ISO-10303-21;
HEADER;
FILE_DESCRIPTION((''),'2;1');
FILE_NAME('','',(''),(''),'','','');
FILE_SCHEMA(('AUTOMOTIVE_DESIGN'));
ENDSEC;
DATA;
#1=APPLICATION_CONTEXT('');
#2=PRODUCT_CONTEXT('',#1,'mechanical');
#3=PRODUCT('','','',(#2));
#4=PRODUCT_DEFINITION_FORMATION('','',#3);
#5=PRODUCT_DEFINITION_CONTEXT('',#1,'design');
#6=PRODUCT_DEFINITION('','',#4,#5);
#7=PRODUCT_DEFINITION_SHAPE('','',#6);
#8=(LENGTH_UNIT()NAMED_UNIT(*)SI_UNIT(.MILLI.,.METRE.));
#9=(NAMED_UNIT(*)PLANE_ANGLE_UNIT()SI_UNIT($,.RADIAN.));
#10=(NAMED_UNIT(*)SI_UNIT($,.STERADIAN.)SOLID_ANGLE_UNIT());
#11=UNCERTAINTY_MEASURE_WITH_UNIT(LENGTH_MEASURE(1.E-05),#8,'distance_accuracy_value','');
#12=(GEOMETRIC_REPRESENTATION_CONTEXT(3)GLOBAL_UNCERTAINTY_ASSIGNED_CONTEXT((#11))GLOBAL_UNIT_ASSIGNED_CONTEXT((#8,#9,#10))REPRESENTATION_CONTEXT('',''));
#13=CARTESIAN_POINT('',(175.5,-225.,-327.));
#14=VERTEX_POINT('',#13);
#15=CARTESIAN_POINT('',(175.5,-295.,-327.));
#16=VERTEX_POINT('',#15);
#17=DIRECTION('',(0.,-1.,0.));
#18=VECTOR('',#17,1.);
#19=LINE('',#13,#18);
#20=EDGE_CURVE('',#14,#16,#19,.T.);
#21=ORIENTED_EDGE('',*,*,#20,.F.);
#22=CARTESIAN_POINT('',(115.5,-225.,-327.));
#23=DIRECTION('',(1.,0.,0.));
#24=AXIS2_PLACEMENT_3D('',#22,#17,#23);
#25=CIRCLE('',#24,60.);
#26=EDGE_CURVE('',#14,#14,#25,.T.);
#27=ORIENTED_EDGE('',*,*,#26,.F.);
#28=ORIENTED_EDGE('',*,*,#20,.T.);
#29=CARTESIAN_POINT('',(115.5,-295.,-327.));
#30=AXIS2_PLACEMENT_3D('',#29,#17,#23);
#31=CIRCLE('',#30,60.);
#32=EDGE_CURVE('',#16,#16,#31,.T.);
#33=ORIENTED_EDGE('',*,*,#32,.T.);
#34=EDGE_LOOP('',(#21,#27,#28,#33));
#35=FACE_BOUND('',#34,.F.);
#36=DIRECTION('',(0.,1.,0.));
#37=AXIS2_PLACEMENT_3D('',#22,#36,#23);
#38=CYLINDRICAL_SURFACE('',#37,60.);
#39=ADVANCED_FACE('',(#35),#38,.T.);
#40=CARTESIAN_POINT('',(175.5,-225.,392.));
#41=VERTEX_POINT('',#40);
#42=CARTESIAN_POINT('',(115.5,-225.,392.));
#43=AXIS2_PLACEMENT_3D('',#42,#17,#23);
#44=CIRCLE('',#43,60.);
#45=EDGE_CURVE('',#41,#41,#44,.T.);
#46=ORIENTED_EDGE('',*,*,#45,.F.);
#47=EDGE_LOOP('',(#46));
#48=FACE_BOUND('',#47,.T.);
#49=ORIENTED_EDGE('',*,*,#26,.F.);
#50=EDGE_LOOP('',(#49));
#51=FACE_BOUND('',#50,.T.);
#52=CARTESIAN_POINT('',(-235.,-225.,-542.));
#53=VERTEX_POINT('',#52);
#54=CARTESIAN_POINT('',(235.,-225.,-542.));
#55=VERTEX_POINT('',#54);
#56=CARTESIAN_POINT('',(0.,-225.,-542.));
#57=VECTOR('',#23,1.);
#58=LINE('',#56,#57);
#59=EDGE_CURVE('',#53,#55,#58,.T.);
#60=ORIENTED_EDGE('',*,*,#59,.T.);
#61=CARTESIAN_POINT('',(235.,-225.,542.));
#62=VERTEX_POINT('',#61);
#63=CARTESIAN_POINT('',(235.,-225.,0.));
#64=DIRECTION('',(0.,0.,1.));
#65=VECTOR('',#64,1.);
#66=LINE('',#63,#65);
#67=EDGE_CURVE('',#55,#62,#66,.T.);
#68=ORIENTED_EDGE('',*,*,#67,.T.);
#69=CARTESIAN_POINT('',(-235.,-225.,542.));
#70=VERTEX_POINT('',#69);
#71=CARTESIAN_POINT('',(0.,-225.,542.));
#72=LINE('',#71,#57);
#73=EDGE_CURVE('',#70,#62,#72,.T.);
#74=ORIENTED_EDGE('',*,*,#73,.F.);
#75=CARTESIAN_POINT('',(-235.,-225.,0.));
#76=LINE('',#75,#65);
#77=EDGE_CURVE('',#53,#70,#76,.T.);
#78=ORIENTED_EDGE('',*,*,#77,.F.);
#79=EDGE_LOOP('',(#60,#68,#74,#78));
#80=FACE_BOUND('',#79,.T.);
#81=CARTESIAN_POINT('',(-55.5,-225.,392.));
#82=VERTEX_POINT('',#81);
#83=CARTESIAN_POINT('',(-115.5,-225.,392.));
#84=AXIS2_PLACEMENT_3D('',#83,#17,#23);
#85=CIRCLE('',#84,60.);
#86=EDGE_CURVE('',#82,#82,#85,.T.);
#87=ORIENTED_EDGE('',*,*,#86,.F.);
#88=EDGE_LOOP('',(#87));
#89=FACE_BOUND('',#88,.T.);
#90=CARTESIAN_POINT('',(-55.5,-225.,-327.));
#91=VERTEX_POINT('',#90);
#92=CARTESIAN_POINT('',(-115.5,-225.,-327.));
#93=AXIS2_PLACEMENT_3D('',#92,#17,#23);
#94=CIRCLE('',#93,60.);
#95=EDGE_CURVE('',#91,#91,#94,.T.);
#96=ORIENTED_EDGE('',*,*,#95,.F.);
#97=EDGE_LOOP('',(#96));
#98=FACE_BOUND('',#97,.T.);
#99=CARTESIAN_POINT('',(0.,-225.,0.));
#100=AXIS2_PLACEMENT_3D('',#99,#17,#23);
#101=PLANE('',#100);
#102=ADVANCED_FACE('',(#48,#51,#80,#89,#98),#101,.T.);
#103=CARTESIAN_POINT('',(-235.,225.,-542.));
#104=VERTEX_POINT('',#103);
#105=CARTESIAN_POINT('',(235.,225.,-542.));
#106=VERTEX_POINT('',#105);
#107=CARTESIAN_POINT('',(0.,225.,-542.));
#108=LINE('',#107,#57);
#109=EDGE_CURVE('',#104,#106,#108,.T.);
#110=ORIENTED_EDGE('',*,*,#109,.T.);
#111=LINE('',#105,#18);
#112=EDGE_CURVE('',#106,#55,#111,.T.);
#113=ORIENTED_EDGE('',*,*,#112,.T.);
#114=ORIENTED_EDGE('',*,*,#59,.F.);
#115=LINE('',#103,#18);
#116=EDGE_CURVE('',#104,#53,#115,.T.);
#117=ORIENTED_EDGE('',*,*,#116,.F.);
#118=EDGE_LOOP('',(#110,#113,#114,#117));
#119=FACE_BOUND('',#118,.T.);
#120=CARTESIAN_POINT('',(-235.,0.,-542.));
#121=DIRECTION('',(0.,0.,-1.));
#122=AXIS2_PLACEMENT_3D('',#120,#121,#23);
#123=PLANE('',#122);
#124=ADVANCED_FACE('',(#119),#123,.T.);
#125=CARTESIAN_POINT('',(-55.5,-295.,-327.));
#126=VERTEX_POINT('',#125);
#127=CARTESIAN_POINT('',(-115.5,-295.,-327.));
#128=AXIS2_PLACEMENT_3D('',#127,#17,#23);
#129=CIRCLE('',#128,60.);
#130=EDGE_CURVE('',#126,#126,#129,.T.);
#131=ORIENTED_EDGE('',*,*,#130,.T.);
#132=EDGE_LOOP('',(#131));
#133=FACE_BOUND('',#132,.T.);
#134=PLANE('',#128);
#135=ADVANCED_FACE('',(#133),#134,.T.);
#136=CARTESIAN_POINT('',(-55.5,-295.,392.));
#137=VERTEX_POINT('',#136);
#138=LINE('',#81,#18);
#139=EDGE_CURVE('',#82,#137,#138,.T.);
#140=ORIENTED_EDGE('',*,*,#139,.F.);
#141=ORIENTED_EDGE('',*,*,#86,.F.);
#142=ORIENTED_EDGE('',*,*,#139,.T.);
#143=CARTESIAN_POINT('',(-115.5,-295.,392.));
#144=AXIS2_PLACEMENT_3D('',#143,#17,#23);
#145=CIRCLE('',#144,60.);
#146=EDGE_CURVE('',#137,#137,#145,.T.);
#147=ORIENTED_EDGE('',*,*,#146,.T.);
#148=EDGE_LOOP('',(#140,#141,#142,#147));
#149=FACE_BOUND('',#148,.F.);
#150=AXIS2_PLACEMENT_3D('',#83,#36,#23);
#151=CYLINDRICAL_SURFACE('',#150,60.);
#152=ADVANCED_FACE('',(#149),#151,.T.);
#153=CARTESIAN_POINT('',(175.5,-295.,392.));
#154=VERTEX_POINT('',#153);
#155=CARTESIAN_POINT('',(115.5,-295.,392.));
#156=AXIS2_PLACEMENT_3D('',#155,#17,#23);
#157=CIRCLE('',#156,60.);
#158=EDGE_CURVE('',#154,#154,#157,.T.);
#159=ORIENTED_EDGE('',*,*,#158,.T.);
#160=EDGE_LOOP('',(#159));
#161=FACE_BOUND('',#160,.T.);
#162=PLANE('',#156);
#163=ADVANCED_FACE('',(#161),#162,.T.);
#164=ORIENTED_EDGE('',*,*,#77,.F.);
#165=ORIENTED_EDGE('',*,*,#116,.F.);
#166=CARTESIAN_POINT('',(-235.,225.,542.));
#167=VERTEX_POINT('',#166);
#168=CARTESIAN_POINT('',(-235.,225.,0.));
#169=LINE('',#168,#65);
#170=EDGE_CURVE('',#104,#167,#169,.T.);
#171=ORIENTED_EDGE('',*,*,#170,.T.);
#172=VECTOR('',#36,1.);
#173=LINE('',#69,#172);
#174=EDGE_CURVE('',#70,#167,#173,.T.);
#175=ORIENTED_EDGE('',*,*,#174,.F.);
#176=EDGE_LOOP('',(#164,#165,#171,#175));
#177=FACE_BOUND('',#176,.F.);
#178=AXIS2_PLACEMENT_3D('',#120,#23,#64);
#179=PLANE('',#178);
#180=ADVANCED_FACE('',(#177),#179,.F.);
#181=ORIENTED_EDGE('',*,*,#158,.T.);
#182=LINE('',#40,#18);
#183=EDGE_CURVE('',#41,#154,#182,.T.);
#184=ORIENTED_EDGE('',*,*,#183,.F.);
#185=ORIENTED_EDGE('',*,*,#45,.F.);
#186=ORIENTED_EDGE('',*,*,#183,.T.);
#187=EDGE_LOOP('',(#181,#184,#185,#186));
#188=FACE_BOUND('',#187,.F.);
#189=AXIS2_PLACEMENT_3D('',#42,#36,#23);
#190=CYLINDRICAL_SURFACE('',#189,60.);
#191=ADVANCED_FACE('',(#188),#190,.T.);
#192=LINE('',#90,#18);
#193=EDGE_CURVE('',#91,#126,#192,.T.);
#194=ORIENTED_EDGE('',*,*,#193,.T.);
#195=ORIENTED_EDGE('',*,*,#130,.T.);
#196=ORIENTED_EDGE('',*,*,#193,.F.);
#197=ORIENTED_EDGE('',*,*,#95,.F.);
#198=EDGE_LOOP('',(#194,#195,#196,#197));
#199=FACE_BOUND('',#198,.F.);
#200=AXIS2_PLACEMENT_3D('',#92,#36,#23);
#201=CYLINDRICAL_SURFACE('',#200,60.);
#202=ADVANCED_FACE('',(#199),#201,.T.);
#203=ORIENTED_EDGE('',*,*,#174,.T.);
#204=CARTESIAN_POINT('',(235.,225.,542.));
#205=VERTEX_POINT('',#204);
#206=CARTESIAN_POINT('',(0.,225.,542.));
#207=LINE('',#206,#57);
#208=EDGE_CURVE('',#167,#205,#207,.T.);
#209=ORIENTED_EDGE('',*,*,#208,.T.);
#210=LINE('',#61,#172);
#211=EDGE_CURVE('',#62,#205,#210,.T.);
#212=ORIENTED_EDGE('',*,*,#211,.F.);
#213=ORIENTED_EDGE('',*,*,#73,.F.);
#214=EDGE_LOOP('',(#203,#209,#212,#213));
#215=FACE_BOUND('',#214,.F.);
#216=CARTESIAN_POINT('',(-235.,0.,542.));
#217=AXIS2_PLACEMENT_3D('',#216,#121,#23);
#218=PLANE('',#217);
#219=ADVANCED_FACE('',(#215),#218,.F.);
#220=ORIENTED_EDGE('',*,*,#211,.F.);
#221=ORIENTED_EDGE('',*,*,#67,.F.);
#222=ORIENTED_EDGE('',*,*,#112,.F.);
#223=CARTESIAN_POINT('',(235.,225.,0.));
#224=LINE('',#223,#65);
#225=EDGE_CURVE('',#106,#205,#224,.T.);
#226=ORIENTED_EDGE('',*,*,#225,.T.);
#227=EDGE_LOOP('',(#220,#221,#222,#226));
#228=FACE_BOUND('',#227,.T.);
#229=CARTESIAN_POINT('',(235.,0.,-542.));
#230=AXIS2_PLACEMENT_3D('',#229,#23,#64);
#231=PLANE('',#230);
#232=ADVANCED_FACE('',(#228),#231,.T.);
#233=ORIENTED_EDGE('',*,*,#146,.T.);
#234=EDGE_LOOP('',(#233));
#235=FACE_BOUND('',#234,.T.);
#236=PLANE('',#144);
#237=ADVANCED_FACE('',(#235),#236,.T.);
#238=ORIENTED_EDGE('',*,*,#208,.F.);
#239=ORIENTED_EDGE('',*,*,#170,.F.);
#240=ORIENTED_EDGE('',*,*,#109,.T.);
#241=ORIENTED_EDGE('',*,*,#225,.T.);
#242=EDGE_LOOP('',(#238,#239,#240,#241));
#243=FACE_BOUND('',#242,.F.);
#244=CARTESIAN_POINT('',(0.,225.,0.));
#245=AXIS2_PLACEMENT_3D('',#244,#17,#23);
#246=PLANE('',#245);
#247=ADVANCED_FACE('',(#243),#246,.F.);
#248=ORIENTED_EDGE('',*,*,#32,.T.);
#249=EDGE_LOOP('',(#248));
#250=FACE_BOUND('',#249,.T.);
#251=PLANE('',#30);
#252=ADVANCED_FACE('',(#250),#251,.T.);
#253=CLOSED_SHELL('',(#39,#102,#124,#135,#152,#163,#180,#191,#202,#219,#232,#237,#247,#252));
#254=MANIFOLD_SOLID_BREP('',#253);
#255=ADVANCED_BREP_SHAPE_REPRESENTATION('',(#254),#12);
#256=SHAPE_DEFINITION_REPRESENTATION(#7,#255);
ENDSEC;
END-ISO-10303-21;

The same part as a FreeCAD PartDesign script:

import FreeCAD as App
import Part
import Sketcher

V = App.Vector
Q = App.Units.Quantity


def add_polygon(sketch, points):
    """Adds a closed chain of lines whose ends are joined by coincident constraints."""
    first, n = sketch.GeometryCount, len(points)
    for a, b in zip(points, points[1:] + points[:1]):
        sketch.addGeometry(Part.LineSegment(App.Vector(*a, 0), App.Vector(*b, 0)), False)
    for i in range(n):
        sketch.addConstraint(Sketcher.Constraint("Coincident", first + i, 2, first + (i + 1) % n, 1))

doc = App.newDocument("Part")
body = doc.addObject("PartDesign::Body", "Body")

sketch1 = body.newObject("Sketcher::SketchObject", "Sketch")
sketch1.AttachmentSupport = (doc.getObject("XZ_Plane"), [""])
sketch1.MapMode = "FlatFace"
add_polygon(sketch1, [(-235, 542), (-235, -542), (235, -542), (235, 542)])
sketch1.addConstraint([
    Sketcher.Constraint("Vertical", 0),
    Sketcher.Constraint("Horizontal", 1),
    Sketcher.Constraint("Vertical", 2),
    Sketcher.Constraint("Horizontal", 3),
    Sketcher.Constraint("Symmetric", 0, 2, 2, 2, -1, 1),
    Sketcher.Constraint("DistanceX", 1, 1, 1, 2, Q("470 mm")),
    Sketcher.Constraint("DistanceY", 0, 2, 0, 1, Q("1084 mm")),
])
pad1 = body.newObject("PartDesign::Pad", "Pad")
pad1.Profile = sketch1
pad1.Length = 450
pad1.Midplane = True

sketch2 = body.newObject("Sketcher::SketchObject", "Sketch001")
sketch2.AttachmentSupport = (doc.getObject("XZ_Plane"), [""])
sketch2.MapMode = "FlatFace"
sketch2.AttachmentOffset = App.Placement(V(0, 0, 225), App.Rotation())
sketch2.addGeometry([
    Part.Circle(V(-116, 392, 0), V(0, 0, 1), 60),
    Part.Circle(V(-116, -327, 0), V(0, 0, 1), 60),
    Part.Circle(V(116, 392, 0), V(0, 0, 1), 60),
    Part.Circle(V(116, -327, 0), V(0, 0, 1), 60),
], False)
sketch2.addConstraint([
    Sketcher.Constraint("Equal", 0, 1),
    Sketcher.Constraint("Equal", 1, 2),
    Sketcher.Constraint("Equal", 2, 3),
    Sketcher.Constraint("Symmetric", 0, 3, 2, 3, -2),
    Sketcher.Constraint("Symmetric", 1, 3, 3, 3, -2),
    Sketcher.Constraint("Vertical", 0, 3, 1, 3),
    Sketcher.Constraint("Diameter", 0, Q("120 mm")),
    Sketcher.Constraint("DistanceY", -1, 1, 0, 3, Q("392 mm")),
    Sketcher.Constraint("DistanceY", 1, 3, -1, 1, Q("327 mm")),
    Sketcher.Constraint("DistanceX", 0, 3, 2, 3, Q("231 mm")),
])
pad2 = body.newObject("PartDesign::Pad", "Pad001")
pad2.Profile = sketch2
pad2.Length = 70

doc.recompute()
